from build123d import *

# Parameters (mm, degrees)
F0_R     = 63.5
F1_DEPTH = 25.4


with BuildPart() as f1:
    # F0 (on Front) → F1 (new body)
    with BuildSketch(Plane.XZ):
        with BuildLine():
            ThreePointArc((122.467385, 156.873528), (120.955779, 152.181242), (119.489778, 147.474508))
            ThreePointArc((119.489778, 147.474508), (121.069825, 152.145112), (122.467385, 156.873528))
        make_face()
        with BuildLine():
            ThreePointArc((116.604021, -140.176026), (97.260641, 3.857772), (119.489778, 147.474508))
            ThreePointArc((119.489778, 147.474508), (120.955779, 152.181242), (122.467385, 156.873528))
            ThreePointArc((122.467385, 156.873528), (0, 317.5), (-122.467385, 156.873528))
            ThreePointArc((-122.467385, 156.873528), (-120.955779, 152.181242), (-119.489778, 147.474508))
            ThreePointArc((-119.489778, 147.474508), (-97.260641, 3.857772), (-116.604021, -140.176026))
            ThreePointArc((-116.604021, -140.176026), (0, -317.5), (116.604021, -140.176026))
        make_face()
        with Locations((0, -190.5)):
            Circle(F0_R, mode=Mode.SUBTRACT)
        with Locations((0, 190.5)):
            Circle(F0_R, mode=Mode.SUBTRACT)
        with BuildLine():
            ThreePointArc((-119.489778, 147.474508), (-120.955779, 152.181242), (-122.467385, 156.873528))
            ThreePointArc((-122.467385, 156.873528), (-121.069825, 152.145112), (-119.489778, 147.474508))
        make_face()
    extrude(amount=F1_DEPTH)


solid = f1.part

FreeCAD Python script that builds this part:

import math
import FreeCAD as App
import Part
import Sketcher
from FreeCAD import Vector
Q = App.Units.Quantity

doc = App.newDocument("Part")
params = doc.addObject("Spreadsheet::Sheet", "Params")
for row, (alias, value) in enumerate([
    ("sketch1_diameter", "5 in"),
    ("sketch1_diameter2", "5 in"),
    ("sketch1_radius", "5 in"),
    ("sketch1_radius2", "20 in"),
    ("sketch1_radius3", "5 in"),
    ("pad1_length", "1 in"),
], start=1):
    params.set(f"A{row}", alias)
    params.set(f"B{row}", "=" + value)
    params.setAlias(f"B{row}", alias)

body = doc.addObject("PartDesign::Body", "Body")

sketch1 = body.newObject("Sketcher::SketchObject", "Sketch")
sketch1.AttachmentSupport = (doc.getObject("XZ_Plane"), [""])
sketch1.MapMode = "FlatFace"
sketch1.addGeometry([
    Part.ArcOfCircle(Part.Circle(Vector(-0.000245, 190.500077, 0), Vector(0, 0, 1), 127.000256), math.radians(-19.802765), math.radians(-15.35361)),
    Part.ArcOfCircle(Part.Circle(Vector(0, 190.5, 0), Vector(0, 0, 1), 127), math.radians(-15.353606), math.radians(195.353606)),
    Part.ArcOfCircle(Part.Circle(Vector(0.000245, 190.500077, 0), Vector(0, 0, 1), 127.000256), math.radians(-164.64639), math.radians(-160.197235)),
    Part.ArcOfCircle(Part.Circle(Vector(-605.235079, -1.23831, 0), Vector(0, 0, 1), 508), math.radians(-15.872611), math.radians(17.022173)),
    Part.ArcOfCircle(Part.Circle(Vector(0, -190.5, 0), Vector(0, 0, 1), 127), math.radians(156.655934), math.radians(383.344066)),
    Part.ArcOfCircle(Part.Circle(Vector(605.235079, -1.23831, 0), Vector(0, 0, 1), 508), math.radians(162.977827), math.radians(195.872611)),
    Part.Circle(Vector(0, -190.5, 0), Vector(0, 0, 1), 63.5),
    Part.Circle(Vector(0, 190.5, 0), Vector(0, 0, 1), 63.5),
], False)
sketch1.addConstraint([
    Sketcher.Constraint("Coincident", 0, 2, 1, 1),
    Sketcher.Constraint("Coincident", 1, 2, 2, 1),
    Sketcher.Constraint("Coincident", 2, 2, 3, 2),
    Sketcher.Constraint("Coincident", 3, 1, 4, 1),
    Sketcher.Constraint("Coincident", 4, 2, 5, 2),
    Sketcher.Constraint("Coincident", 5, 1, 0, 1),
    Sketcher.Constraint("Coincident", 6, 3, 4, 3),
    Sketcher.Constraint("Coincident", 7, 3, 1, 3),
    Sketcher.Constraint("PointOnObject", 1, 3, -2),
    Sketcher.Constraint("PointOnObject", 4, 3, -2),
    Sketcher.Constraint("Diameter", 6, Q("5 in")),
    Sketcher.Constraint("Diameter", 7, Q("5 in")),
    Sketcher.Constraint("Radius", 1, Q("5 in")),
    Sketcher.Constraint("Radius", 3, Q("20 in")),
    Sketcher.Constraint("Radius", 4, Q("5 in")),
    Sketcher.Constraint("Radius", 5, Q("20 in")),
    Sketcher.Constraint("DistanceY", 4, 3, 1, 3, Q("15 in")),
    Sketcher.Constraint("DistanceY", -1, 1, 1, 3, Q("7.5 in")),
    Sketcher.Constraint("Radius", 0, 127.000256),
    Sketcher.Constraint("Radius", 2, 127.000256),
    Sketcher.Constraint("DistanceX", 3, 1, 0, 3, Q("4.5906999 in")),
    Sketcher.Constraint("DistanceX", 2, 3, 4, 2, Q("4.5906999 in")),
    Sketcher.Constraint("DistanceX", 3, 3, -1, 1, 605.235079),
    Sketcher.Constraint("DistanceY", 3, 3, -1, 1, 1.23831),
    Sketcher.Constraint("DistanceX", -1, 1, 5, 3, 605.235079),
    Sketcher.Constraint("DistanceY", 5, 3, -1, 1, 1.23831),
    Sketcher.Constraint("DistanceX", 2, 3, 0, 2, 122.46714),
    Sketcher.Constraint("DistanceX", 1, 2, 0, 3, 122.46714),
])
sketch1.setExpression("Constraints[10]", "Params.sketch1_diameter")
sketch1.setExpression("Constraints[11]", "Params.sketch1_diameter2")
sketch1.setExpression("Constraints[12]", "Params.sketch1_radius")
sketch1.setExpression("Constraints[13]", "Params.sketch1_radius2")
sketch1.setExpression("Constraints[14]", "Params.sketch1_radius3")
pad1 = body.newObject("PartDesign::Pad", "Pad")
pad1.Profile = sketch1
pad1.setExpression("Length", "Params.pad1_length")

doc.recompute()
